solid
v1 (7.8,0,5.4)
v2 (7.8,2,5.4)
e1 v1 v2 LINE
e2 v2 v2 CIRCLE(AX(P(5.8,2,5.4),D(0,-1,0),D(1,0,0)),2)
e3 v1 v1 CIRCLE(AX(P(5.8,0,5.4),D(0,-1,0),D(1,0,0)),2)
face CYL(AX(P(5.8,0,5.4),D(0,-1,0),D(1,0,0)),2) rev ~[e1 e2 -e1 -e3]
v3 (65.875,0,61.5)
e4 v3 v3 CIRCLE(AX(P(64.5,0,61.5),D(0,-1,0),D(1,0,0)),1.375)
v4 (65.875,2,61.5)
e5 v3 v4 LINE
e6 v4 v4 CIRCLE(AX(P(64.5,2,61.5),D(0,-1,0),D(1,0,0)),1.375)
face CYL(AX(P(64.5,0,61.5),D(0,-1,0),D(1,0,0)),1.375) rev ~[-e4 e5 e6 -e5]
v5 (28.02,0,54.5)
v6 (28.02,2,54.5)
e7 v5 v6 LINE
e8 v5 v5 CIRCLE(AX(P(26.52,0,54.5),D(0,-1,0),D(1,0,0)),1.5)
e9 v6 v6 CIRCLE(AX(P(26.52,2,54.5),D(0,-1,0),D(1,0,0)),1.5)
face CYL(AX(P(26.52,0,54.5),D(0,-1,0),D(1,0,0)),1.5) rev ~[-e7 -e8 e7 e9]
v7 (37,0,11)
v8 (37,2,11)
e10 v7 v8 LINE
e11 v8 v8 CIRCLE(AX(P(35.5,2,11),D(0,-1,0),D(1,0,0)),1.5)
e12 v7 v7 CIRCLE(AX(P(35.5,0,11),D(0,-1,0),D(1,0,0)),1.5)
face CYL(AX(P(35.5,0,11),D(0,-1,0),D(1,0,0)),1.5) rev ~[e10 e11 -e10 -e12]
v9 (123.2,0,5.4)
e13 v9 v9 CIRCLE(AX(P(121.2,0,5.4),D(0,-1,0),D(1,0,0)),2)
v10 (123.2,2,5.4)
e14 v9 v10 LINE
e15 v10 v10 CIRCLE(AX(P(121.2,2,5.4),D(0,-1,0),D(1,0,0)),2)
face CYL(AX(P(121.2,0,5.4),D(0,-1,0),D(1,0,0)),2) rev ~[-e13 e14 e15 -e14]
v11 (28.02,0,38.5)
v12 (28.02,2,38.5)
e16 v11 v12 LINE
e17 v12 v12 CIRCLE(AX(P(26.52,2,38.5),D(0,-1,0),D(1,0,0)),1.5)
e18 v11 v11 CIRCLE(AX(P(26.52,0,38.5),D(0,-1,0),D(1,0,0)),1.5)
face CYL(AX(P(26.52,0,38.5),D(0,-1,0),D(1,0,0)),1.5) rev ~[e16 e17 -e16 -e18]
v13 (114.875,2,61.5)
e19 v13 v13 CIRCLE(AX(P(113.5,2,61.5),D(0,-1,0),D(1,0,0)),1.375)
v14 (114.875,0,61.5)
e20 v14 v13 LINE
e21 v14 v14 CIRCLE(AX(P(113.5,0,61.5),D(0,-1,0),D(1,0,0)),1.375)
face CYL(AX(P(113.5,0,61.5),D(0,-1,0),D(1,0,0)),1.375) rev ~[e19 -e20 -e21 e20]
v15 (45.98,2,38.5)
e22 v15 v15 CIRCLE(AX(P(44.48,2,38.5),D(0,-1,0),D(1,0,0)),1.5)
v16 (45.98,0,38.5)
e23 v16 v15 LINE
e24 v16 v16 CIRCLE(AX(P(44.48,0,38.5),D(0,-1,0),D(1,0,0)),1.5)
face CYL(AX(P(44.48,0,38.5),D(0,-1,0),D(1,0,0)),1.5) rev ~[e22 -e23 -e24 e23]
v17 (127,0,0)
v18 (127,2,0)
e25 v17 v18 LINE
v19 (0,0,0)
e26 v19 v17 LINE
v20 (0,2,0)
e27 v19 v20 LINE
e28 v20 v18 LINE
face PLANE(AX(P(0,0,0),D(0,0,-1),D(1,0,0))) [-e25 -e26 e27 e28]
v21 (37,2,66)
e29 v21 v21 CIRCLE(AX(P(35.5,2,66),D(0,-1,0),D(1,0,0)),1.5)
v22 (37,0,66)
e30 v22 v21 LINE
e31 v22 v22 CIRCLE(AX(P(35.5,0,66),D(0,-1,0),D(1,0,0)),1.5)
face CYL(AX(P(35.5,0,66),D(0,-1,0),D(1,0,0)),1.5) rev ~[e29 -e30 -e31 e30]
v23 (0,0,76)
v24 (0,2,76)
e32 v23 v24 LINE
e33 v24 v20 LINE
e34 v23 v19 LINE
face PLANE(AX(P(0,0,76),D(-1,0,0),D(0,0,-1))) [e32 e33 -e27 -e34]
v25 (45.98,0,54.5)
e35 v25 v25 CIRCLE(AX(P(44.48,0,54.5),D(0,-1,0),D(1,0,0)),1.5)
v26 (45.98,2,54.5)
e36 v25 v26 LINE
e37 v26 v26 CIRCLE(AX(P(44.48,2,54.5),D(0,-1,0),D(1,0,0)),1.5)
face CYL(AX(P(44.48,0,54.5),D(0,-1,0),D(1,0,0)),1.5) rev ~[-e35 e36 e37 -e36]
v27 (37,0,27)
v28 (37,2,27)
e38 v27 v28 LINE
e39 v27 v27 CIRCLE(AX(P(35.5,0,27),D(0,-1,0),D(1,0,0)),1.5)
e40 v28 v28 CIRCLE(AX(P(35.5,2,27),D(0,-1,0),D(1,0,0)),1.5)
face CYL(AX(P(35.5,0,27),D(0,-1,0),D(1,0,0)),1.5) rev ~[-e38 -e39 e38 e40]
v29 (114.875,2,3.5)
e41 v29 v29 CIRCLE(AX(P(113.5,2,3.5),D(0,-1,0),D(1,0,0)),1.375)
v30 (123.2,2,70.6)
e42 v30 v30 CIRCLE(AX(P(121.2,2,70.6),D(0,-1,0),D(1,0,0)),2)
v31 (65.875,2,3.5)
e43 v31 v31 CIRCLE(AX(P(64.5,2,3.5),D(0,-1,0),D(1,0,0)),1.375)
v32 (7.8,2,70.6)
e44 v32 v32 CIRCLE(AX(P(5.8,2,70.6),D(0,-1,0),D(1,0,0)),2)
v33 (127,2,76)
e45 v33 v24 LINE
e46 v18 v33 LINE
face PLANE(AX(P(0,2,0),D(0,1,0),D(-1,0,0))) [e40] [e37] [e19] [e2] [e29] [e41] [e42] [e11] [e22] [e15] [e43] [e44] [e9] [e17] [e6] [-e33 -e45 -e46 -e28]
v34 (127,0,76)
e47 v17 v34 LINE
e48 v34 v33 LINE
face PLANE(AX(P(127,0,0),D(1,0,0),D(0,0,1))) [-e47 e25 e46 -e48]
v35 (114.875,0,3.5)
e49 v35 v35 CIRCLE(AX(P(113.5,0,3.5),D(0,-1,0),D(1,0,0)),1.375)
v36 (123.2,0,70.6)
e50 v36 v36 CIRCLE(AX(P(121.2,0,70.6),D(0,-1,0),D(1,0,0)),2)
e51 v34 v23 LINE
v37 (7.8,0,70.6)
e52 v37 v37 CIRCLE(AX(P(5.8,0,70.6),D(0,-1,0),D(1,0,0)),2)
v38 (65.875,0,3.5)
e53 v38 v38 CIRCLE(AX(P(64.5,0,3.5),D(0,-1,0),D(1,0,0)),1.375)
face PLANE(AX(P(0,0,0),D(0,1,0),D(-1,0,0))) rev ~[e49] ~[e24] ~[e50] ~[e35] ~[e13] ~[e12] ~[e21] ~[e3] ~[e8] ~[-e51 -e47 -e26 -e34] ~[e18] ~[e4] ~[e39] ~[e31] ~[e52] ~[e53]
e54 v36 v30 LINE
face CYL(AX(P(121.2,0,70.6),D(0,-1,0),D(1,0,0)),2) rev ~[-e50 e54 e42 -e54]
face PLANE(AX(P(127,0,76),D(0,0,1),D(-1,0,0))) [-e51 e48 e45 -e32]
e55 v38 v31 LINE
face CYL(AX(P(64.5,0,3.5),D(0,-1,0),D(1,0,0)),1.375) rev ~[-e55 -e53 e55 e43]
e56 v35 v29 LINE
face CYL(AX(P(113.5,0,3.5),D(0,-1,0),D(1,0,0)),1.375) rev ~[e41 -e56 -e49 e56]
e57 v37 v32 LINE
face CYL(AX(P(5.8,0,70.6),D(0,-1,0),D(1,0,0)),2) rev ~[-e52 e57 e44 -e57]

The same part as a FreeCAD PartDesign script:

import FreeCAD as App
import Part
import Sketcher
Q = App.Units.Quantity

doc = App.newDocument("Part")
body = doc.addObject("PartDesign::Body", "Body")

sketch1 = body.newObject("Sketcher::SketchObject", "Sketch")
sketch1.AttachmentSupport = (doc.getObject("XZ_Plane"), [""])
sketch1.MapMode = "FlatFace"
sketch1.addGeometry(Part.LineSegment(App.Vector(127, 0, 0), App.Vector(0, 0, 0)), False)
sketch1.addGeometry(Part.LineSegment(App.Vector(0, 0, 0), App.Vector(0, 76, 0)), False)
sketch1.addGeometry(Part.LineSegment(App.Vector(0, 76, 0), App.Vector(127, 76, 0)), False)
sketch1.addGeometry(Part.LineSegment(App.Vector(127, 76, 0), App.Vector(127, 0, 0)), False)
sketch1.addConstraint(Sketcher.Constraint("Coincident", 0, 2, 1, 1))
sketch1.addConstraint(Sketcher.Constraint("Coincident", 1, 2, 2, 1))
sketch1.addConstraint(Sketcher.Constraint("Coincident", 2, 2, 3, 1))
sketch1.addConstraint(Sketcher.Constraint("Coincident", 3, 2, 0, 1))
sketch1.addConstraint(Sketcher.Constraint("Horizontal", 0))
sketch1.addConstraint(Sketcher.Constraint("Vertical", 1))
sketch1.addConstraint(Sketcher.Constraint("Horizontal", 2))
sketch1.addConstraint(Sketcher.Constraint("Vertical", 3))
sketch1.addConstraint(Sketcher.Constraint("Coincident", 0, 2, -1, 1))
sketch1.addConstraint(Sketcher.Constraint("DistanceX", 0, 2, 0, 1, Q("127 mm")))
sketch1.addConstraint(Sketcher.Constraint("DistanceY", 1, 1, 1, 2, Q("76 mm")))
pad1 = body.newObject("PartDesign::Pad", "Pad")
pad1.Profile = sketch1
pad1.Length = 2
pad1.Reversed = True

sketch2 = body.newObject("Sketcher::SketchObject", "Sketch001")
sketch2.AttachmentSupport = (doc.getObject("XZ_Plane"), [""])
sketch2.MapMode = "FlatFace"
sketch2.addGeometry(Part.Circle(App.Vector(121.2, 70.6, 0), App.Vector(0, 0, 1), 2), False)
sketch2.addGeometry(Part.Circle(App.Vector(121.2, 5.4, 0), App.Vector(0, 0, 1), 2), False)
sketch2.addGeometry(Part.Circle(App.Vector(5.8, 70.6, 0), App.Vector(0, 0, 1), 2), False)
sketch2.addGeometry(Part.Circle(App.Vector(5.8, 5.4, 0), App.Vector(0, 0, 1), 2), False)
sketch2.addConstraint(Sketcher.Constraint("Equal", 0, 1))
sketch2.addConstraint(Sketcher.Constraint("Equal", 1, 2))
sketch2.addConstraint(Sketcher.Constraint("Equal", 2, 3))
sketch2.addConstraint(Sketcher.Constraint("Horizontal", 0, 3, 2, 3))
sketch2.addConstraint(Sketcher.Constraint("Horizontal", 1, 3, 3, 3))
sketch2.addConstraint(Sketcher.Constraint("Vertical", 0, 3, 1, 3))
sketch2.addConstraint(Sketcher.Constraint("Vertical", 2, 3, 3, 3))
sketch2.addConstraint(Sketcher.Constraint("Diameter", 0, Q("4 mm")))
sketch2.addConstraint(Sketcher.Constraint("DistanceX", -1, 1, 0, 3, Q("121.2 mm")))
sketch2.addConstraint(Sketcher.Constraint("DistanceY", -1, 1, 0, 3, Q("70.6 mm")))
sketch2.addConstraint(Sketcher.Constraint("DistanceY", -1, 1, 1, 3, Q("5.4 mm")))
sketch2.addConstraint(Sketcher.Constraint("DistanceX", -1, 1, 2, 3, Q("5.8 mm")))
pocket1 = body.newObject("PartDesign::Pocket", "Pocket")
pocket1.Profile = sketch2
pocket1.Type = "ThroughAll"

sketch3 = body.newObject("Sketcher::SketchObject", "Sketch002")
sketch3.AttachmentSupport = (doc.getObject("XZ_Plane"), [""])
sketch3.MapMode = "FlatFace"
sketch3.addGeometry(Part.Circle(App.Vector(35.5, 27, 0), App.Vector(0, 0, 1), 1.5), False)
sketch3.addGeometry(Part.Circle(App.Vector(35.5, 82, 0), App.Vector(0, 0, 1), 1.5), False)
sketch3.addGeometry(Part.Circle(App.Vector(113.5, 3.5, 0), App.Vector(0, 0, 1), 1.4), False)
sketch3.addGeometry(Part.Circle(App.Vector(113.5, 61.5, 0), App.Vector(0, 0, 1), 1.4), False)
sketch3.addGeometry(Part.Circle(App.Vector(64.5, 3.5, 0), App.Vector(0, 0, 1), 1.4), False)
sketch3.addGeometry(Part.Circle(App.Vector(64.5, 61.5, 0), App.Vector(0, 0, 1), 1.4), False)
sketch3.addGeometry(Part.Circle(App.Vector(44.5, 54.5, 0), App.Vector(0, 0, 1), 1.5), False)
sketch3.addGeometry(Part.Circle(App.Vector(26.5, 54.5, 0), App.Vector(0, 0, 1), 1.5), False)
sketch3.addGeometry(Part.Circle(App.Vector(35.5, 11, 0), App.Vector(0, 0, 1), 1.5), False)
sketch3.addGeometry(Part.Circle(App.Vector(35.5, 66, 0), App.Vector(0, 0, 1), 1.5), False)
sketch3.addGeometry(Part.Circle(App.Vector(44.5, 38.5, 0), App.Vector(0, 0, 1), 1.5), False)
sketch3.addGeometry(Part.Circle(App.Vector(26.5, 38.5, 0), App.Vector(0, 0, 1), 1.5), False)
sketch3.addConstraint(Sketcher.Constraint("Equal", 0, 1))
sketch3.addConstraint(Sketcher.Constraint("Equal", 2, 3))
sketch3.addConstraint(Sketcher.Constraint("Equal", 3, 4))
sketch3.addConstraint(Sketcher.Constraint("Equal", 4, 5))
sketch3.addConstraint(Sketcher.Constraint("Equal", 1, 6))
sketch3.addConstraint(Sketcher.Constraint("Equal", 6, 7))
sketch3.addConstraint(Sketcher.Constraint("Equal", 7, 8))
sketch3.addConstraint(Sketcher.Constraint("Equal", 8, 9))
sketch3.addConstraint(Sketcher.Constraint("Equal", 9, 10))
sketch3.addConstraint(Sketcher.Constraint("Equal", 10, 11))
sketch3.addConstraint(Sketcher.Constraint("Horizontal", 2, 3, 4, 3))
sketch3.addConstraint(Sketcher.Constraint("Horizontal", 3, 3, 5, 3))
sketch3.addConstraint(Sketcher.Constraint("Horizontal", 6, 3, 7, 3))
sketch3.addConstraint(Sketcher.Constraint("Horizontal", 10, 3, 11, 3))
sketch3.addConstraint(Sketcher.Constraint("Vertical", 0, 3, 1, 3))
sketch3.addConstraint(Sketcher.Constraint("Vertical", 2, 3, 3, 3))
sketch3.addConstraint(Sketcher.Constraint("Vertical", 4, 3, 5, 3))
sketch3.addConstraint(Sketcher.Constraint("Vertical", 1, 3, 8, 3))
sketch3.addConstraint(Sketcher.Constraint("Vertical", 8, 3, 9, 3))
sketch3.addConstraint(Sketcher.Constraint("Vertical", 6, 3, 10, 3))
sketch3.addConstraint(Sketcher.Constraint("Vertical", 7, 3, 11, 3))
sketch3.addConstraint(Sketcher.Constraint("Diameter", 0, Q("3 mm")))
sketch3.addConstraint(Sketcher.Constraint("Diameter", 2, Q("2.75 mm")))
sketch3.addConstraint(Sketcher.Constraint("DistanceY", -1, 1, 0, 3, Q("27 mm")))
sketch3.addConstraint(Sketcher.Constraint("DistanceY", -1, 1, 8, 3, Q("11 mm")))
sketch3.addConstraint(Sketcher.Constraint("DistanceY", 0, 3, 1, 3, Q("55 mm")))
sketch3.addConstraint(Sketcher.Constraint("DistanceY", 2, 3, 3, 3, Q("58 mm")))
sketch3.addConstraint(Sketcher.Constraint("DistanceX", 4, 3, 2, 3, Q("49 mm")))
sketch3.addConstraint(Sketcher.Constraint("DistanceY", 4, 3, 6, 3, Q("51 mm")))
sketch3.addConstraint(Sketcher.Constraint("DistanceY", -1, 1, 2, 3, Q("3.5 mm")))
sketch3.addConstraint(Sketcher.Constraint("DistanceY", 8, 3, 10, 3, Q("27.5 mm")))
sketch3.addConstraint(Sketcher.Constraint("DistanceY", 10, 3, 9, 3, Q("27.5 mm")))
sketch3.addConstraint(Sketcher.Constraint("DistanceX", 0, 3, 6, 3, Q("8.98 mm")))
sketch3.addConstraint(Sketcher.Constraint("DistanceX", 7, 3, 0, 3, Q("8.98 mm")))
sketch3.addConstraint(Sketcher.Constraint("DistanceX", 0, 3, 2, 3, Q("78 mm")))
sketch3.addConstraint(Sketcher.Constraint("DistanceX", -1, 1, 0, 3, Q("35.5 mm")))
pocket2 = body.newObject("PartDesign::Pocket", "Pocket001")
pocket2.Profile = sketch3
pocket2.Type = "ThroughAll"

doc.recompute()
